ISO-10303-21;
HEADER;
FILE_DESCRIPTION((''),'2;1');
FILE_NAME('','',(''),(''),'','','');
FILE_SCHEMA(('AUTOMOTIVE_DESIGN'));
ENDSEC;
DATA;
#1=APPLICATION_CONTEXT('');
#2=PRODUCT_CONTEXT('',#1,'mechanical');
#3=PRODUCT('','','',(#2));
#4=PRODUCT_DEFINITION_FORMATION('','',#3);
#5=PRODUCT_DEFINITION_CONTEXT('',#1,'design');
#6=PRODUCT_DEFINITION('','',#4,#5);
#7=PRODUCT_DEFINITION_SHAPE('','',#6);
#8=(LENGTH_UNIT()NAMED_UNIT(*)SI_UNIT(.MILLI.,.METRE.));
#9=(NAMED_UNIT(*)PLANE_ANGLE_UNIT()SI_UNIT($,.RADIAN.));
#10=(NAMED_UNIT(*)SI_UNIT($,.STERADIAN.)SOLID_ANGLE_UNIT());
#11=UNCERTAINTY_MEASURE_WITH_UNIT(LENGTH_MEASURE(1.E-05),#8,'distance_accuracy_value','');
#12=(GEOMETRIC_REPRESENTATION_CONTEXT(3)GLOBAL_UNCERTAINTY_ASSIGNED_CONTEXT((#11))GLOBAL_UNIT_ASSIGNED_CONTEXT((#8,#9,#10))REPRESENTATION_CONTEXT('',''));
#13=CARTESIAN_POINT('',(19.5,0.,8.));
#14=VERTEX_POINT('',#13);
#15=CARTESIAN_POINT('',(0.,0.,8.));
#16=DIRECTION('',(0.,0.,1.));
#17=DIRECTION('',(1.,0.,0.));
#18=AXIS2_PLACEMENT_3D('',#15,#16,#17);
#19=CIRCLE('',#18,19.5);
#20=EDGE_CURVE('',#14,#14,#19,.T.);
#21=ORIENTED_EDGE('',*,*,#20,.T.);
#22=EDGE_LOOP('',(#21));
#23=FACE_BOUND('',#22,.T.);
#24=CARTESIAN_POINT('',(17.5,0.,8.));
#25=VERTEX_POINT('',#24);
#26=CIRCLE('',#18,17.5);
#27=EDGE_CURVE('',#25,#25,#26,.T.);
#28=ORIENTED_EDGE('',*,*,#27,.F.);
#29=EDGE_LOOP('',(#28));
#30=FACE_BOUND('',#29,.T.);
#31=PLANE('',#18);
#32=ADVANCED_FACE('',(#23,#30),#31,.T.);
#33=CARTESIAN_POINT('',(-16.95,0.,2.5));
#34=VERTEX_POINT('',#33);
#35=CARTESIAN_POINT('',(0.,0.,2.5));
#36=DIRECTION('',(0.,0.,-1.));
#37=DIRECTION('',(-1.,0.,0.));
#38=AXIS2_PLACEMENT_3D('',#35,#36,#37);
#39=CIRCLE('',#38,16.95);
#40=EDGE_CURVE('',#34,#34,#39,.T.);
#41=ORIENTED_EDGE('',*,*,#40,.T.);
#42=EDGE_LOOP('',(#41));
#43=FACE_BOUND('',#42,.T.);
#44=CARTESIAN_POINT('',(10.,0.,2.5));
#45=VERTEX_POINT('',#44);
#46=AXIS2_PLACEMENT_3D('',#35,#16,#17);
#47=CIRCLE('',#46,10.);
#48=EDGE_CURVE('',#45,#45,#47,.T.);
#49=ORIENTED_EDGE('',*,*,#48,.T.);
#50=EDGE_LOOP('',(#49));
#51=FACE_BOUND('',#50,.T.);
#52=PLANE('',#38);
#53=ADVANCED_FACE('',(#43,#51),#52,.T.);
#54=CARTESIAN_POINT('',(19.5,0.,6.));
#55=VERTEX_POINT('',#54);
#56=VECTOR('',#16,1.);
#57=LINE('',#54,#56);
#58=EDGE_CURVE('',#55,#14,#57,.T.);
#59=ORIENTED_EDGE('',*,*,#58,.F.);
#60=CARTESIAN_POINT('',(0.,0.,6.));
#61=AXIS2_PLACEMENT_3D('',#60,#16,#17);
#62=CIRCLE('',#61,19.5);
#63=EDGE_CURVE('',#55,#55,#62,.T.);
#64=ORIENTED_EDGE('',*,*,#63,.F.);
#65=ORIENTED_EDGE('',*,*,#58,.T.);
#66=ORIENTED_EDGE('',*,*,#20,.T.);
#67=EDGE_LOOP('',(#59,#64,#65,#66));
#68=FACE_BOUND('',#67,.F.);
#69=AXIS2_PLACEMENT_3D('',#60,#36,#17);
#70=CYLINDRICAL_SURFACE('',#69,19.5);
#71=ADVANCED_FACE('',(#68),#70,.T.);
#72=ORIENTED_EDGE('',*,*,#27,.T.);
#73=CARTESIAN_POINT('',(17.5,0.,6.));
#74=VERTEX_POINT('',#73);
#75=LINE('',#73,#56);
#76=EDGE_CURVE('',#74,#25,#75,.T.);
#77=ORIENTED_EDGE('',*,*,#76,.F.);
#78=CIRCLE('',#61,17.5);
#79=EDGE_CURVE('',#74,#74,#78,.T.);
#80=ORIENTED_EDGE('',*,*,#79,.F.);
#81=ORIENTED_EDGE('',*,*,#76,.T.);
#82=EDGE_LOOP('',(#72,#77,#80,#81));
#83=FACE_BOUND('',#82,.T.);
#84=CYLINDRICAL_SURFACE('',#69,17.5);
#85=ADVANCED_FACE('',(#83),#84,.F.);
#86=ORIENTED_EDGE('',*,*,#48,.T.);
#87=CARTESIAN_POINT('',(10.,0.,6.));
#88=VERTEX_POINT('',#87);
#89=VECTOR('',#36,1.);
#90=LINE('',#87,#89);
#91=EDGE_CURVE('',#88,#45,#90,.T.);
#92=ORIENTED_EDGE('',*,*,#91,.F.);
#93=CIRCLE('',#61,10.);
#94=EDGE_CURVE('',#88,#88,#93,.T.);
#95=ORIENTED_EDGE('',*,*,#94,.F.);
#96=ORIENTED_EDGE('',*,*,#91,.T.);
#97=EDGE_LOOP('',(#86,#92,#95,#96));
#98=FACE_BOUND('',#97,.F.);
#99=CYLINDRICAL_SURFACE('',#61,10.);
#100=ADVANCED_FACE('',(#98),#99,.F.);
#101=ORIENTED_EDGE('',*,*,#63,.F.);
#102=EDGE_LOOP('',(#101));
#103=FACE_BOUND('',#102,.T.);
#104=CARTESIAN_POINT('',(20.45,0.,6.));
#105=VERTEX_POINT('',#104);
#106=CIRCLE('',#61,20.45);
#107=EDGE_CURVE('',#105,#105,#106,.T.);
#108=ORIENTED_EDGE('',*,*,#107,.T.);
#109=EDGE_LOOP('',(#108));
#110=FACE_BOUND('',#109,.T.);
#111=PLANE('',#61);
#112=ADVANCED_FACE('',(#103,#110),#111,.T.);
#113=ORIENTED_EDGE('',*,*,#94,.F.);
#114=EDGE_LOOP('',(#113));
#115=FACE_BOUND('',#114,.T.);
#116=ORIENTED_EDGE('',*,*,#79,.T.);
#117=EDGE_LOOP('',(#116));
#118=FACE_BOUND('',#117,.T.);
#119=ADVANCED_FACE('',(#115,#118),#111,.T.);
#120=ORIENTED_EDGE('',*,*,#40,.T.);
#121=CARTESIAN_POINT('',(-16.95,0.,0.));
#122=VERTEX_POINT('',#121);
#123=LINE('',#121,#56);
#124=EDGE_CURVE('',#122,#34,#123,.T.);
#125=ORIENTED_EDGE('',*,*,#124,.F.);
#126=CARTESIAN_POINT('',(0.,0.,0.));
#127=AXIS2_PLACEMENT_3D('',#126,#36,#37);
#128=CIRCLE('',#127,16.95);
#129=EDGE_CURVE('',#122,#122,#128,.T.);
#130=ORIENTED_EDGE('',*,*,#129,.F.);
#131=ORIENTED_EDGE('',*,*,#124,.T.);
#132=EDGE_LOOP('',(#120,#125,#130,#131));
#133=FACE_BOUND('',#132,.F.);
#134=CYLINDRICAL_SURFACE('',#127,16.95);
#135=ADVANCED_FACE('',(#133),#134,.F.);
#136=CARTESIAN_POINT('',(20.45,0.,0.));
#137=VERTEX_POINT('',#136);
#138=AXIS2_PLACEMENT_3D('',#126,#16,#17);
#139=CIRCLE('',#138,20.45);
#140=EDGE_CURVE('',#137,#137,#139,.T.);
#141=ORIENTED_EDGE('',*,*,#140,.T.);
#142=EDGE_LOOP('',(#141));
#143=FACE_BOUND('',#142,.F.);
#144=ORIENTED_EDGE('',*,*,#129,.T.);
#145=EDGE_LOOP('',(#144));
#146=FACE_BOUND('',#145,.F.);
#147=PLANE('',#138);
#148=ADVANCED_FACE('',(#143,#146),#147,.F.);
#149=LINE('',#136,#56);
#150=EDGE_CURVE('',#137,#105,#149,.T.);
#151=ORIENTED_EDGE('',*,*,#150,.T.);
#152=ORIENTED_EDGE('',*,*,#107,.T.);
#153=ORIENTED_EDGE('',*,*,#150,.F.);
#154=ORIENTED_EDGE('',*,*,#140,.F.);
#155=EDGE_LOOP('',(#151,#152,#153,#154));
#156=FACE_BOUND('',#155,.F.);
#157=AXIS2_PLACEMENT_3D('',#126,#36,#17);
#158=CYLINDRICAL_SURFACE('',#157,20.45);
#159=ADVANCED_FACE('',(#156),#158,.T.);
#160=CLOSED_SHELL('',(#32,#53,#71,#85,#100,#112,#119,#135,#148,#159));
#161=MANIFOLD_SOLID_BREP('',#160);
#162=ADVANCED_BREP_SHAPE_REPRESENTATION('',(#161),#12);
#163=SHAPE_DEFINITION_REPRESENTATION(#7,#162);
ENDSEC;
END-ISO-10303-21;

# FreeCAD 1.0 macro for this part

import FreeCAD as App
import Part
import Sketcher

V = App.Vector

doc = App.newDocument("Part")
body = doc.addObject("PartDesign::Body", "Body")

sketch1 = body.newObject("Sketcher::SketchObject", "Sketch")
sketch1.AttachmentSupport = (doc.getObject("XY_Plane"), [""])
sketch1.MapMode = "FlatFace"
sketch1.addGeometry(Part.Circle(V(0, 0, 0), V(0, 0, 1), 20), False)
sketch1.addGeometry(Part.LineSegment(V(6, -6, 0), V(-6, -6, 0)), False)
sketch1.addGeometry(Part.LineSegment(V(-6, -6, 0), V(-6, 6, 0)), False)
sketch1.addGeometry(Part.LineSegment(V(-6, 6, 0), V(6, 6, 0)), False)
sketch1.addGeometry(Part.LineSegment(V(6, 6, 0), V(6, -6, 0)), False)
sketch1.addConstraint(Sketcher.Constraint("Coincident", 1, 2, 2, 1))
sketch1.addConstraint(Sketcher.Constraint("Coincident", 2, 2, 3, 1))
sketch1.addConstraint(Sketcher.Constraint("Coincident", 3, 2, 4, 1))
sketch1.addConstraint(Sketcher.Constraint("Coincident", 4, 2, 1, 1))
sketch1.addConstraint(Sketcher.Constraint("Horizontal", 1))
sketch1.addConstraint(Sketcher.Constraint("Vertical", 2))
sketch1.addConstraint(Sketcher.Constraint("Horizontal", 3))
sketch1.addConstraint(Sketcher.Constraint("Vertical", 4))
sketch1.addConstraint(Sketcher.Constraint("Coincident", 0, 3, -1, 1))
sketch1.addConstraint(Sketcher.Constraint("Symmetric", 1, 2, 3, 2, -1, 1))
sketch1.addConstraint(Sketcher.Constraint("Equal", 3, 2))
sketch1.addConstraint(Sketcher.Constraint("Diameter", 0, 40.9))
sketch1.addConstraint(Sketcher.Constraint("DistanceX", 1, 2, 1, 1, 11.0))
pad1 = body.newObject("PartDesign::Pad", "Pad")
pad1.Profile = sketch1
pad1.Length = 6

sketch2 = body.newObject("Sketcher::SketchObject", "Sketch001")
sketch2.AttachmentSupport = (doc.getObject("XY_Plane"), [""])
sketch2.MapMode = "FlatFace"
sketch2.AttachmentOffset = App.Placement(V(0, 0, 6), App.Rotation())
sketch2.addGeometry(Part.Circle(V(0, 0, 0), V(0, 0, 1), 20), False)
sketch2.addGeometry(Part.Circle(V(0, 0, 0), V(0, 0, 1), 18), False)
sketch2.addConstraint(Sketcher.Constraint("Coincident", 0, 3, -1, 1))
sketch2.addConstraint(Sketcher.Constraint("Coincident", 1, 3, -1, 1))
sketch2.addConstraint(Sketcher.Constraint("Diameter", 0, 39.0))
sketch2.addConstraint(Sketcher.Constraint("Diameter", 1, 35.0))
pad2 = body.newObject("PartDesign::Pad", "Pad001")
pad2.Profile = sketch2
pad2.Length = 2

sketch3 = body.newObject("Sketcher::SketchObject", "Sketch002")
sketch3.AttachmentSupport = (doc.getObject("XY_Plane"), [""])
sketch3.MapMode = "FlatFace"
sketch3.addGeometry(Part.Circle(V(0, 0, 0), V(0, 0, 1), 17), False)
sketch3.addConstraint(Sketcher.Constraint("Coincident", 0, 3, -1, 1))
sketch3.addConstraint(Sketcher.Constraint("Diameter", 0, 33.9))
pocket1 = body.newObject("PartDesign::Pocket", "Pocket")
pocket1.Profile = sketch3
pocket1.Length = 2.5
pocket1.Reversed = True

sketch4 = body.newObject("Sketcher::SketchObject", "Sketch003")
sketch4.AttachmentSupport = (doc.getObject("XY_Plane"), [""])
sketch4.MapMode = "FlatFace"
sketch4.AttachmentOffset = App.Placement(V(0, 0, 6), App.Rotation())
sketch4.addGeometry(Part.Circle(V(0, 0, 0), V(0, 0, 1), 10), False)
sketch4.addConstraint(Sketcher.Constraint("Coincident", 0, 3, -1, 1))
sketch4.addConstraint(Sketcher.Constraint("Diameter", 0, 20.0))
pocket2 = body.newObject("PartDesign::Pocket", "Pocket001")
pocket2.Profile = sketch4
pocket2.Length = 10

doc.recompute()
